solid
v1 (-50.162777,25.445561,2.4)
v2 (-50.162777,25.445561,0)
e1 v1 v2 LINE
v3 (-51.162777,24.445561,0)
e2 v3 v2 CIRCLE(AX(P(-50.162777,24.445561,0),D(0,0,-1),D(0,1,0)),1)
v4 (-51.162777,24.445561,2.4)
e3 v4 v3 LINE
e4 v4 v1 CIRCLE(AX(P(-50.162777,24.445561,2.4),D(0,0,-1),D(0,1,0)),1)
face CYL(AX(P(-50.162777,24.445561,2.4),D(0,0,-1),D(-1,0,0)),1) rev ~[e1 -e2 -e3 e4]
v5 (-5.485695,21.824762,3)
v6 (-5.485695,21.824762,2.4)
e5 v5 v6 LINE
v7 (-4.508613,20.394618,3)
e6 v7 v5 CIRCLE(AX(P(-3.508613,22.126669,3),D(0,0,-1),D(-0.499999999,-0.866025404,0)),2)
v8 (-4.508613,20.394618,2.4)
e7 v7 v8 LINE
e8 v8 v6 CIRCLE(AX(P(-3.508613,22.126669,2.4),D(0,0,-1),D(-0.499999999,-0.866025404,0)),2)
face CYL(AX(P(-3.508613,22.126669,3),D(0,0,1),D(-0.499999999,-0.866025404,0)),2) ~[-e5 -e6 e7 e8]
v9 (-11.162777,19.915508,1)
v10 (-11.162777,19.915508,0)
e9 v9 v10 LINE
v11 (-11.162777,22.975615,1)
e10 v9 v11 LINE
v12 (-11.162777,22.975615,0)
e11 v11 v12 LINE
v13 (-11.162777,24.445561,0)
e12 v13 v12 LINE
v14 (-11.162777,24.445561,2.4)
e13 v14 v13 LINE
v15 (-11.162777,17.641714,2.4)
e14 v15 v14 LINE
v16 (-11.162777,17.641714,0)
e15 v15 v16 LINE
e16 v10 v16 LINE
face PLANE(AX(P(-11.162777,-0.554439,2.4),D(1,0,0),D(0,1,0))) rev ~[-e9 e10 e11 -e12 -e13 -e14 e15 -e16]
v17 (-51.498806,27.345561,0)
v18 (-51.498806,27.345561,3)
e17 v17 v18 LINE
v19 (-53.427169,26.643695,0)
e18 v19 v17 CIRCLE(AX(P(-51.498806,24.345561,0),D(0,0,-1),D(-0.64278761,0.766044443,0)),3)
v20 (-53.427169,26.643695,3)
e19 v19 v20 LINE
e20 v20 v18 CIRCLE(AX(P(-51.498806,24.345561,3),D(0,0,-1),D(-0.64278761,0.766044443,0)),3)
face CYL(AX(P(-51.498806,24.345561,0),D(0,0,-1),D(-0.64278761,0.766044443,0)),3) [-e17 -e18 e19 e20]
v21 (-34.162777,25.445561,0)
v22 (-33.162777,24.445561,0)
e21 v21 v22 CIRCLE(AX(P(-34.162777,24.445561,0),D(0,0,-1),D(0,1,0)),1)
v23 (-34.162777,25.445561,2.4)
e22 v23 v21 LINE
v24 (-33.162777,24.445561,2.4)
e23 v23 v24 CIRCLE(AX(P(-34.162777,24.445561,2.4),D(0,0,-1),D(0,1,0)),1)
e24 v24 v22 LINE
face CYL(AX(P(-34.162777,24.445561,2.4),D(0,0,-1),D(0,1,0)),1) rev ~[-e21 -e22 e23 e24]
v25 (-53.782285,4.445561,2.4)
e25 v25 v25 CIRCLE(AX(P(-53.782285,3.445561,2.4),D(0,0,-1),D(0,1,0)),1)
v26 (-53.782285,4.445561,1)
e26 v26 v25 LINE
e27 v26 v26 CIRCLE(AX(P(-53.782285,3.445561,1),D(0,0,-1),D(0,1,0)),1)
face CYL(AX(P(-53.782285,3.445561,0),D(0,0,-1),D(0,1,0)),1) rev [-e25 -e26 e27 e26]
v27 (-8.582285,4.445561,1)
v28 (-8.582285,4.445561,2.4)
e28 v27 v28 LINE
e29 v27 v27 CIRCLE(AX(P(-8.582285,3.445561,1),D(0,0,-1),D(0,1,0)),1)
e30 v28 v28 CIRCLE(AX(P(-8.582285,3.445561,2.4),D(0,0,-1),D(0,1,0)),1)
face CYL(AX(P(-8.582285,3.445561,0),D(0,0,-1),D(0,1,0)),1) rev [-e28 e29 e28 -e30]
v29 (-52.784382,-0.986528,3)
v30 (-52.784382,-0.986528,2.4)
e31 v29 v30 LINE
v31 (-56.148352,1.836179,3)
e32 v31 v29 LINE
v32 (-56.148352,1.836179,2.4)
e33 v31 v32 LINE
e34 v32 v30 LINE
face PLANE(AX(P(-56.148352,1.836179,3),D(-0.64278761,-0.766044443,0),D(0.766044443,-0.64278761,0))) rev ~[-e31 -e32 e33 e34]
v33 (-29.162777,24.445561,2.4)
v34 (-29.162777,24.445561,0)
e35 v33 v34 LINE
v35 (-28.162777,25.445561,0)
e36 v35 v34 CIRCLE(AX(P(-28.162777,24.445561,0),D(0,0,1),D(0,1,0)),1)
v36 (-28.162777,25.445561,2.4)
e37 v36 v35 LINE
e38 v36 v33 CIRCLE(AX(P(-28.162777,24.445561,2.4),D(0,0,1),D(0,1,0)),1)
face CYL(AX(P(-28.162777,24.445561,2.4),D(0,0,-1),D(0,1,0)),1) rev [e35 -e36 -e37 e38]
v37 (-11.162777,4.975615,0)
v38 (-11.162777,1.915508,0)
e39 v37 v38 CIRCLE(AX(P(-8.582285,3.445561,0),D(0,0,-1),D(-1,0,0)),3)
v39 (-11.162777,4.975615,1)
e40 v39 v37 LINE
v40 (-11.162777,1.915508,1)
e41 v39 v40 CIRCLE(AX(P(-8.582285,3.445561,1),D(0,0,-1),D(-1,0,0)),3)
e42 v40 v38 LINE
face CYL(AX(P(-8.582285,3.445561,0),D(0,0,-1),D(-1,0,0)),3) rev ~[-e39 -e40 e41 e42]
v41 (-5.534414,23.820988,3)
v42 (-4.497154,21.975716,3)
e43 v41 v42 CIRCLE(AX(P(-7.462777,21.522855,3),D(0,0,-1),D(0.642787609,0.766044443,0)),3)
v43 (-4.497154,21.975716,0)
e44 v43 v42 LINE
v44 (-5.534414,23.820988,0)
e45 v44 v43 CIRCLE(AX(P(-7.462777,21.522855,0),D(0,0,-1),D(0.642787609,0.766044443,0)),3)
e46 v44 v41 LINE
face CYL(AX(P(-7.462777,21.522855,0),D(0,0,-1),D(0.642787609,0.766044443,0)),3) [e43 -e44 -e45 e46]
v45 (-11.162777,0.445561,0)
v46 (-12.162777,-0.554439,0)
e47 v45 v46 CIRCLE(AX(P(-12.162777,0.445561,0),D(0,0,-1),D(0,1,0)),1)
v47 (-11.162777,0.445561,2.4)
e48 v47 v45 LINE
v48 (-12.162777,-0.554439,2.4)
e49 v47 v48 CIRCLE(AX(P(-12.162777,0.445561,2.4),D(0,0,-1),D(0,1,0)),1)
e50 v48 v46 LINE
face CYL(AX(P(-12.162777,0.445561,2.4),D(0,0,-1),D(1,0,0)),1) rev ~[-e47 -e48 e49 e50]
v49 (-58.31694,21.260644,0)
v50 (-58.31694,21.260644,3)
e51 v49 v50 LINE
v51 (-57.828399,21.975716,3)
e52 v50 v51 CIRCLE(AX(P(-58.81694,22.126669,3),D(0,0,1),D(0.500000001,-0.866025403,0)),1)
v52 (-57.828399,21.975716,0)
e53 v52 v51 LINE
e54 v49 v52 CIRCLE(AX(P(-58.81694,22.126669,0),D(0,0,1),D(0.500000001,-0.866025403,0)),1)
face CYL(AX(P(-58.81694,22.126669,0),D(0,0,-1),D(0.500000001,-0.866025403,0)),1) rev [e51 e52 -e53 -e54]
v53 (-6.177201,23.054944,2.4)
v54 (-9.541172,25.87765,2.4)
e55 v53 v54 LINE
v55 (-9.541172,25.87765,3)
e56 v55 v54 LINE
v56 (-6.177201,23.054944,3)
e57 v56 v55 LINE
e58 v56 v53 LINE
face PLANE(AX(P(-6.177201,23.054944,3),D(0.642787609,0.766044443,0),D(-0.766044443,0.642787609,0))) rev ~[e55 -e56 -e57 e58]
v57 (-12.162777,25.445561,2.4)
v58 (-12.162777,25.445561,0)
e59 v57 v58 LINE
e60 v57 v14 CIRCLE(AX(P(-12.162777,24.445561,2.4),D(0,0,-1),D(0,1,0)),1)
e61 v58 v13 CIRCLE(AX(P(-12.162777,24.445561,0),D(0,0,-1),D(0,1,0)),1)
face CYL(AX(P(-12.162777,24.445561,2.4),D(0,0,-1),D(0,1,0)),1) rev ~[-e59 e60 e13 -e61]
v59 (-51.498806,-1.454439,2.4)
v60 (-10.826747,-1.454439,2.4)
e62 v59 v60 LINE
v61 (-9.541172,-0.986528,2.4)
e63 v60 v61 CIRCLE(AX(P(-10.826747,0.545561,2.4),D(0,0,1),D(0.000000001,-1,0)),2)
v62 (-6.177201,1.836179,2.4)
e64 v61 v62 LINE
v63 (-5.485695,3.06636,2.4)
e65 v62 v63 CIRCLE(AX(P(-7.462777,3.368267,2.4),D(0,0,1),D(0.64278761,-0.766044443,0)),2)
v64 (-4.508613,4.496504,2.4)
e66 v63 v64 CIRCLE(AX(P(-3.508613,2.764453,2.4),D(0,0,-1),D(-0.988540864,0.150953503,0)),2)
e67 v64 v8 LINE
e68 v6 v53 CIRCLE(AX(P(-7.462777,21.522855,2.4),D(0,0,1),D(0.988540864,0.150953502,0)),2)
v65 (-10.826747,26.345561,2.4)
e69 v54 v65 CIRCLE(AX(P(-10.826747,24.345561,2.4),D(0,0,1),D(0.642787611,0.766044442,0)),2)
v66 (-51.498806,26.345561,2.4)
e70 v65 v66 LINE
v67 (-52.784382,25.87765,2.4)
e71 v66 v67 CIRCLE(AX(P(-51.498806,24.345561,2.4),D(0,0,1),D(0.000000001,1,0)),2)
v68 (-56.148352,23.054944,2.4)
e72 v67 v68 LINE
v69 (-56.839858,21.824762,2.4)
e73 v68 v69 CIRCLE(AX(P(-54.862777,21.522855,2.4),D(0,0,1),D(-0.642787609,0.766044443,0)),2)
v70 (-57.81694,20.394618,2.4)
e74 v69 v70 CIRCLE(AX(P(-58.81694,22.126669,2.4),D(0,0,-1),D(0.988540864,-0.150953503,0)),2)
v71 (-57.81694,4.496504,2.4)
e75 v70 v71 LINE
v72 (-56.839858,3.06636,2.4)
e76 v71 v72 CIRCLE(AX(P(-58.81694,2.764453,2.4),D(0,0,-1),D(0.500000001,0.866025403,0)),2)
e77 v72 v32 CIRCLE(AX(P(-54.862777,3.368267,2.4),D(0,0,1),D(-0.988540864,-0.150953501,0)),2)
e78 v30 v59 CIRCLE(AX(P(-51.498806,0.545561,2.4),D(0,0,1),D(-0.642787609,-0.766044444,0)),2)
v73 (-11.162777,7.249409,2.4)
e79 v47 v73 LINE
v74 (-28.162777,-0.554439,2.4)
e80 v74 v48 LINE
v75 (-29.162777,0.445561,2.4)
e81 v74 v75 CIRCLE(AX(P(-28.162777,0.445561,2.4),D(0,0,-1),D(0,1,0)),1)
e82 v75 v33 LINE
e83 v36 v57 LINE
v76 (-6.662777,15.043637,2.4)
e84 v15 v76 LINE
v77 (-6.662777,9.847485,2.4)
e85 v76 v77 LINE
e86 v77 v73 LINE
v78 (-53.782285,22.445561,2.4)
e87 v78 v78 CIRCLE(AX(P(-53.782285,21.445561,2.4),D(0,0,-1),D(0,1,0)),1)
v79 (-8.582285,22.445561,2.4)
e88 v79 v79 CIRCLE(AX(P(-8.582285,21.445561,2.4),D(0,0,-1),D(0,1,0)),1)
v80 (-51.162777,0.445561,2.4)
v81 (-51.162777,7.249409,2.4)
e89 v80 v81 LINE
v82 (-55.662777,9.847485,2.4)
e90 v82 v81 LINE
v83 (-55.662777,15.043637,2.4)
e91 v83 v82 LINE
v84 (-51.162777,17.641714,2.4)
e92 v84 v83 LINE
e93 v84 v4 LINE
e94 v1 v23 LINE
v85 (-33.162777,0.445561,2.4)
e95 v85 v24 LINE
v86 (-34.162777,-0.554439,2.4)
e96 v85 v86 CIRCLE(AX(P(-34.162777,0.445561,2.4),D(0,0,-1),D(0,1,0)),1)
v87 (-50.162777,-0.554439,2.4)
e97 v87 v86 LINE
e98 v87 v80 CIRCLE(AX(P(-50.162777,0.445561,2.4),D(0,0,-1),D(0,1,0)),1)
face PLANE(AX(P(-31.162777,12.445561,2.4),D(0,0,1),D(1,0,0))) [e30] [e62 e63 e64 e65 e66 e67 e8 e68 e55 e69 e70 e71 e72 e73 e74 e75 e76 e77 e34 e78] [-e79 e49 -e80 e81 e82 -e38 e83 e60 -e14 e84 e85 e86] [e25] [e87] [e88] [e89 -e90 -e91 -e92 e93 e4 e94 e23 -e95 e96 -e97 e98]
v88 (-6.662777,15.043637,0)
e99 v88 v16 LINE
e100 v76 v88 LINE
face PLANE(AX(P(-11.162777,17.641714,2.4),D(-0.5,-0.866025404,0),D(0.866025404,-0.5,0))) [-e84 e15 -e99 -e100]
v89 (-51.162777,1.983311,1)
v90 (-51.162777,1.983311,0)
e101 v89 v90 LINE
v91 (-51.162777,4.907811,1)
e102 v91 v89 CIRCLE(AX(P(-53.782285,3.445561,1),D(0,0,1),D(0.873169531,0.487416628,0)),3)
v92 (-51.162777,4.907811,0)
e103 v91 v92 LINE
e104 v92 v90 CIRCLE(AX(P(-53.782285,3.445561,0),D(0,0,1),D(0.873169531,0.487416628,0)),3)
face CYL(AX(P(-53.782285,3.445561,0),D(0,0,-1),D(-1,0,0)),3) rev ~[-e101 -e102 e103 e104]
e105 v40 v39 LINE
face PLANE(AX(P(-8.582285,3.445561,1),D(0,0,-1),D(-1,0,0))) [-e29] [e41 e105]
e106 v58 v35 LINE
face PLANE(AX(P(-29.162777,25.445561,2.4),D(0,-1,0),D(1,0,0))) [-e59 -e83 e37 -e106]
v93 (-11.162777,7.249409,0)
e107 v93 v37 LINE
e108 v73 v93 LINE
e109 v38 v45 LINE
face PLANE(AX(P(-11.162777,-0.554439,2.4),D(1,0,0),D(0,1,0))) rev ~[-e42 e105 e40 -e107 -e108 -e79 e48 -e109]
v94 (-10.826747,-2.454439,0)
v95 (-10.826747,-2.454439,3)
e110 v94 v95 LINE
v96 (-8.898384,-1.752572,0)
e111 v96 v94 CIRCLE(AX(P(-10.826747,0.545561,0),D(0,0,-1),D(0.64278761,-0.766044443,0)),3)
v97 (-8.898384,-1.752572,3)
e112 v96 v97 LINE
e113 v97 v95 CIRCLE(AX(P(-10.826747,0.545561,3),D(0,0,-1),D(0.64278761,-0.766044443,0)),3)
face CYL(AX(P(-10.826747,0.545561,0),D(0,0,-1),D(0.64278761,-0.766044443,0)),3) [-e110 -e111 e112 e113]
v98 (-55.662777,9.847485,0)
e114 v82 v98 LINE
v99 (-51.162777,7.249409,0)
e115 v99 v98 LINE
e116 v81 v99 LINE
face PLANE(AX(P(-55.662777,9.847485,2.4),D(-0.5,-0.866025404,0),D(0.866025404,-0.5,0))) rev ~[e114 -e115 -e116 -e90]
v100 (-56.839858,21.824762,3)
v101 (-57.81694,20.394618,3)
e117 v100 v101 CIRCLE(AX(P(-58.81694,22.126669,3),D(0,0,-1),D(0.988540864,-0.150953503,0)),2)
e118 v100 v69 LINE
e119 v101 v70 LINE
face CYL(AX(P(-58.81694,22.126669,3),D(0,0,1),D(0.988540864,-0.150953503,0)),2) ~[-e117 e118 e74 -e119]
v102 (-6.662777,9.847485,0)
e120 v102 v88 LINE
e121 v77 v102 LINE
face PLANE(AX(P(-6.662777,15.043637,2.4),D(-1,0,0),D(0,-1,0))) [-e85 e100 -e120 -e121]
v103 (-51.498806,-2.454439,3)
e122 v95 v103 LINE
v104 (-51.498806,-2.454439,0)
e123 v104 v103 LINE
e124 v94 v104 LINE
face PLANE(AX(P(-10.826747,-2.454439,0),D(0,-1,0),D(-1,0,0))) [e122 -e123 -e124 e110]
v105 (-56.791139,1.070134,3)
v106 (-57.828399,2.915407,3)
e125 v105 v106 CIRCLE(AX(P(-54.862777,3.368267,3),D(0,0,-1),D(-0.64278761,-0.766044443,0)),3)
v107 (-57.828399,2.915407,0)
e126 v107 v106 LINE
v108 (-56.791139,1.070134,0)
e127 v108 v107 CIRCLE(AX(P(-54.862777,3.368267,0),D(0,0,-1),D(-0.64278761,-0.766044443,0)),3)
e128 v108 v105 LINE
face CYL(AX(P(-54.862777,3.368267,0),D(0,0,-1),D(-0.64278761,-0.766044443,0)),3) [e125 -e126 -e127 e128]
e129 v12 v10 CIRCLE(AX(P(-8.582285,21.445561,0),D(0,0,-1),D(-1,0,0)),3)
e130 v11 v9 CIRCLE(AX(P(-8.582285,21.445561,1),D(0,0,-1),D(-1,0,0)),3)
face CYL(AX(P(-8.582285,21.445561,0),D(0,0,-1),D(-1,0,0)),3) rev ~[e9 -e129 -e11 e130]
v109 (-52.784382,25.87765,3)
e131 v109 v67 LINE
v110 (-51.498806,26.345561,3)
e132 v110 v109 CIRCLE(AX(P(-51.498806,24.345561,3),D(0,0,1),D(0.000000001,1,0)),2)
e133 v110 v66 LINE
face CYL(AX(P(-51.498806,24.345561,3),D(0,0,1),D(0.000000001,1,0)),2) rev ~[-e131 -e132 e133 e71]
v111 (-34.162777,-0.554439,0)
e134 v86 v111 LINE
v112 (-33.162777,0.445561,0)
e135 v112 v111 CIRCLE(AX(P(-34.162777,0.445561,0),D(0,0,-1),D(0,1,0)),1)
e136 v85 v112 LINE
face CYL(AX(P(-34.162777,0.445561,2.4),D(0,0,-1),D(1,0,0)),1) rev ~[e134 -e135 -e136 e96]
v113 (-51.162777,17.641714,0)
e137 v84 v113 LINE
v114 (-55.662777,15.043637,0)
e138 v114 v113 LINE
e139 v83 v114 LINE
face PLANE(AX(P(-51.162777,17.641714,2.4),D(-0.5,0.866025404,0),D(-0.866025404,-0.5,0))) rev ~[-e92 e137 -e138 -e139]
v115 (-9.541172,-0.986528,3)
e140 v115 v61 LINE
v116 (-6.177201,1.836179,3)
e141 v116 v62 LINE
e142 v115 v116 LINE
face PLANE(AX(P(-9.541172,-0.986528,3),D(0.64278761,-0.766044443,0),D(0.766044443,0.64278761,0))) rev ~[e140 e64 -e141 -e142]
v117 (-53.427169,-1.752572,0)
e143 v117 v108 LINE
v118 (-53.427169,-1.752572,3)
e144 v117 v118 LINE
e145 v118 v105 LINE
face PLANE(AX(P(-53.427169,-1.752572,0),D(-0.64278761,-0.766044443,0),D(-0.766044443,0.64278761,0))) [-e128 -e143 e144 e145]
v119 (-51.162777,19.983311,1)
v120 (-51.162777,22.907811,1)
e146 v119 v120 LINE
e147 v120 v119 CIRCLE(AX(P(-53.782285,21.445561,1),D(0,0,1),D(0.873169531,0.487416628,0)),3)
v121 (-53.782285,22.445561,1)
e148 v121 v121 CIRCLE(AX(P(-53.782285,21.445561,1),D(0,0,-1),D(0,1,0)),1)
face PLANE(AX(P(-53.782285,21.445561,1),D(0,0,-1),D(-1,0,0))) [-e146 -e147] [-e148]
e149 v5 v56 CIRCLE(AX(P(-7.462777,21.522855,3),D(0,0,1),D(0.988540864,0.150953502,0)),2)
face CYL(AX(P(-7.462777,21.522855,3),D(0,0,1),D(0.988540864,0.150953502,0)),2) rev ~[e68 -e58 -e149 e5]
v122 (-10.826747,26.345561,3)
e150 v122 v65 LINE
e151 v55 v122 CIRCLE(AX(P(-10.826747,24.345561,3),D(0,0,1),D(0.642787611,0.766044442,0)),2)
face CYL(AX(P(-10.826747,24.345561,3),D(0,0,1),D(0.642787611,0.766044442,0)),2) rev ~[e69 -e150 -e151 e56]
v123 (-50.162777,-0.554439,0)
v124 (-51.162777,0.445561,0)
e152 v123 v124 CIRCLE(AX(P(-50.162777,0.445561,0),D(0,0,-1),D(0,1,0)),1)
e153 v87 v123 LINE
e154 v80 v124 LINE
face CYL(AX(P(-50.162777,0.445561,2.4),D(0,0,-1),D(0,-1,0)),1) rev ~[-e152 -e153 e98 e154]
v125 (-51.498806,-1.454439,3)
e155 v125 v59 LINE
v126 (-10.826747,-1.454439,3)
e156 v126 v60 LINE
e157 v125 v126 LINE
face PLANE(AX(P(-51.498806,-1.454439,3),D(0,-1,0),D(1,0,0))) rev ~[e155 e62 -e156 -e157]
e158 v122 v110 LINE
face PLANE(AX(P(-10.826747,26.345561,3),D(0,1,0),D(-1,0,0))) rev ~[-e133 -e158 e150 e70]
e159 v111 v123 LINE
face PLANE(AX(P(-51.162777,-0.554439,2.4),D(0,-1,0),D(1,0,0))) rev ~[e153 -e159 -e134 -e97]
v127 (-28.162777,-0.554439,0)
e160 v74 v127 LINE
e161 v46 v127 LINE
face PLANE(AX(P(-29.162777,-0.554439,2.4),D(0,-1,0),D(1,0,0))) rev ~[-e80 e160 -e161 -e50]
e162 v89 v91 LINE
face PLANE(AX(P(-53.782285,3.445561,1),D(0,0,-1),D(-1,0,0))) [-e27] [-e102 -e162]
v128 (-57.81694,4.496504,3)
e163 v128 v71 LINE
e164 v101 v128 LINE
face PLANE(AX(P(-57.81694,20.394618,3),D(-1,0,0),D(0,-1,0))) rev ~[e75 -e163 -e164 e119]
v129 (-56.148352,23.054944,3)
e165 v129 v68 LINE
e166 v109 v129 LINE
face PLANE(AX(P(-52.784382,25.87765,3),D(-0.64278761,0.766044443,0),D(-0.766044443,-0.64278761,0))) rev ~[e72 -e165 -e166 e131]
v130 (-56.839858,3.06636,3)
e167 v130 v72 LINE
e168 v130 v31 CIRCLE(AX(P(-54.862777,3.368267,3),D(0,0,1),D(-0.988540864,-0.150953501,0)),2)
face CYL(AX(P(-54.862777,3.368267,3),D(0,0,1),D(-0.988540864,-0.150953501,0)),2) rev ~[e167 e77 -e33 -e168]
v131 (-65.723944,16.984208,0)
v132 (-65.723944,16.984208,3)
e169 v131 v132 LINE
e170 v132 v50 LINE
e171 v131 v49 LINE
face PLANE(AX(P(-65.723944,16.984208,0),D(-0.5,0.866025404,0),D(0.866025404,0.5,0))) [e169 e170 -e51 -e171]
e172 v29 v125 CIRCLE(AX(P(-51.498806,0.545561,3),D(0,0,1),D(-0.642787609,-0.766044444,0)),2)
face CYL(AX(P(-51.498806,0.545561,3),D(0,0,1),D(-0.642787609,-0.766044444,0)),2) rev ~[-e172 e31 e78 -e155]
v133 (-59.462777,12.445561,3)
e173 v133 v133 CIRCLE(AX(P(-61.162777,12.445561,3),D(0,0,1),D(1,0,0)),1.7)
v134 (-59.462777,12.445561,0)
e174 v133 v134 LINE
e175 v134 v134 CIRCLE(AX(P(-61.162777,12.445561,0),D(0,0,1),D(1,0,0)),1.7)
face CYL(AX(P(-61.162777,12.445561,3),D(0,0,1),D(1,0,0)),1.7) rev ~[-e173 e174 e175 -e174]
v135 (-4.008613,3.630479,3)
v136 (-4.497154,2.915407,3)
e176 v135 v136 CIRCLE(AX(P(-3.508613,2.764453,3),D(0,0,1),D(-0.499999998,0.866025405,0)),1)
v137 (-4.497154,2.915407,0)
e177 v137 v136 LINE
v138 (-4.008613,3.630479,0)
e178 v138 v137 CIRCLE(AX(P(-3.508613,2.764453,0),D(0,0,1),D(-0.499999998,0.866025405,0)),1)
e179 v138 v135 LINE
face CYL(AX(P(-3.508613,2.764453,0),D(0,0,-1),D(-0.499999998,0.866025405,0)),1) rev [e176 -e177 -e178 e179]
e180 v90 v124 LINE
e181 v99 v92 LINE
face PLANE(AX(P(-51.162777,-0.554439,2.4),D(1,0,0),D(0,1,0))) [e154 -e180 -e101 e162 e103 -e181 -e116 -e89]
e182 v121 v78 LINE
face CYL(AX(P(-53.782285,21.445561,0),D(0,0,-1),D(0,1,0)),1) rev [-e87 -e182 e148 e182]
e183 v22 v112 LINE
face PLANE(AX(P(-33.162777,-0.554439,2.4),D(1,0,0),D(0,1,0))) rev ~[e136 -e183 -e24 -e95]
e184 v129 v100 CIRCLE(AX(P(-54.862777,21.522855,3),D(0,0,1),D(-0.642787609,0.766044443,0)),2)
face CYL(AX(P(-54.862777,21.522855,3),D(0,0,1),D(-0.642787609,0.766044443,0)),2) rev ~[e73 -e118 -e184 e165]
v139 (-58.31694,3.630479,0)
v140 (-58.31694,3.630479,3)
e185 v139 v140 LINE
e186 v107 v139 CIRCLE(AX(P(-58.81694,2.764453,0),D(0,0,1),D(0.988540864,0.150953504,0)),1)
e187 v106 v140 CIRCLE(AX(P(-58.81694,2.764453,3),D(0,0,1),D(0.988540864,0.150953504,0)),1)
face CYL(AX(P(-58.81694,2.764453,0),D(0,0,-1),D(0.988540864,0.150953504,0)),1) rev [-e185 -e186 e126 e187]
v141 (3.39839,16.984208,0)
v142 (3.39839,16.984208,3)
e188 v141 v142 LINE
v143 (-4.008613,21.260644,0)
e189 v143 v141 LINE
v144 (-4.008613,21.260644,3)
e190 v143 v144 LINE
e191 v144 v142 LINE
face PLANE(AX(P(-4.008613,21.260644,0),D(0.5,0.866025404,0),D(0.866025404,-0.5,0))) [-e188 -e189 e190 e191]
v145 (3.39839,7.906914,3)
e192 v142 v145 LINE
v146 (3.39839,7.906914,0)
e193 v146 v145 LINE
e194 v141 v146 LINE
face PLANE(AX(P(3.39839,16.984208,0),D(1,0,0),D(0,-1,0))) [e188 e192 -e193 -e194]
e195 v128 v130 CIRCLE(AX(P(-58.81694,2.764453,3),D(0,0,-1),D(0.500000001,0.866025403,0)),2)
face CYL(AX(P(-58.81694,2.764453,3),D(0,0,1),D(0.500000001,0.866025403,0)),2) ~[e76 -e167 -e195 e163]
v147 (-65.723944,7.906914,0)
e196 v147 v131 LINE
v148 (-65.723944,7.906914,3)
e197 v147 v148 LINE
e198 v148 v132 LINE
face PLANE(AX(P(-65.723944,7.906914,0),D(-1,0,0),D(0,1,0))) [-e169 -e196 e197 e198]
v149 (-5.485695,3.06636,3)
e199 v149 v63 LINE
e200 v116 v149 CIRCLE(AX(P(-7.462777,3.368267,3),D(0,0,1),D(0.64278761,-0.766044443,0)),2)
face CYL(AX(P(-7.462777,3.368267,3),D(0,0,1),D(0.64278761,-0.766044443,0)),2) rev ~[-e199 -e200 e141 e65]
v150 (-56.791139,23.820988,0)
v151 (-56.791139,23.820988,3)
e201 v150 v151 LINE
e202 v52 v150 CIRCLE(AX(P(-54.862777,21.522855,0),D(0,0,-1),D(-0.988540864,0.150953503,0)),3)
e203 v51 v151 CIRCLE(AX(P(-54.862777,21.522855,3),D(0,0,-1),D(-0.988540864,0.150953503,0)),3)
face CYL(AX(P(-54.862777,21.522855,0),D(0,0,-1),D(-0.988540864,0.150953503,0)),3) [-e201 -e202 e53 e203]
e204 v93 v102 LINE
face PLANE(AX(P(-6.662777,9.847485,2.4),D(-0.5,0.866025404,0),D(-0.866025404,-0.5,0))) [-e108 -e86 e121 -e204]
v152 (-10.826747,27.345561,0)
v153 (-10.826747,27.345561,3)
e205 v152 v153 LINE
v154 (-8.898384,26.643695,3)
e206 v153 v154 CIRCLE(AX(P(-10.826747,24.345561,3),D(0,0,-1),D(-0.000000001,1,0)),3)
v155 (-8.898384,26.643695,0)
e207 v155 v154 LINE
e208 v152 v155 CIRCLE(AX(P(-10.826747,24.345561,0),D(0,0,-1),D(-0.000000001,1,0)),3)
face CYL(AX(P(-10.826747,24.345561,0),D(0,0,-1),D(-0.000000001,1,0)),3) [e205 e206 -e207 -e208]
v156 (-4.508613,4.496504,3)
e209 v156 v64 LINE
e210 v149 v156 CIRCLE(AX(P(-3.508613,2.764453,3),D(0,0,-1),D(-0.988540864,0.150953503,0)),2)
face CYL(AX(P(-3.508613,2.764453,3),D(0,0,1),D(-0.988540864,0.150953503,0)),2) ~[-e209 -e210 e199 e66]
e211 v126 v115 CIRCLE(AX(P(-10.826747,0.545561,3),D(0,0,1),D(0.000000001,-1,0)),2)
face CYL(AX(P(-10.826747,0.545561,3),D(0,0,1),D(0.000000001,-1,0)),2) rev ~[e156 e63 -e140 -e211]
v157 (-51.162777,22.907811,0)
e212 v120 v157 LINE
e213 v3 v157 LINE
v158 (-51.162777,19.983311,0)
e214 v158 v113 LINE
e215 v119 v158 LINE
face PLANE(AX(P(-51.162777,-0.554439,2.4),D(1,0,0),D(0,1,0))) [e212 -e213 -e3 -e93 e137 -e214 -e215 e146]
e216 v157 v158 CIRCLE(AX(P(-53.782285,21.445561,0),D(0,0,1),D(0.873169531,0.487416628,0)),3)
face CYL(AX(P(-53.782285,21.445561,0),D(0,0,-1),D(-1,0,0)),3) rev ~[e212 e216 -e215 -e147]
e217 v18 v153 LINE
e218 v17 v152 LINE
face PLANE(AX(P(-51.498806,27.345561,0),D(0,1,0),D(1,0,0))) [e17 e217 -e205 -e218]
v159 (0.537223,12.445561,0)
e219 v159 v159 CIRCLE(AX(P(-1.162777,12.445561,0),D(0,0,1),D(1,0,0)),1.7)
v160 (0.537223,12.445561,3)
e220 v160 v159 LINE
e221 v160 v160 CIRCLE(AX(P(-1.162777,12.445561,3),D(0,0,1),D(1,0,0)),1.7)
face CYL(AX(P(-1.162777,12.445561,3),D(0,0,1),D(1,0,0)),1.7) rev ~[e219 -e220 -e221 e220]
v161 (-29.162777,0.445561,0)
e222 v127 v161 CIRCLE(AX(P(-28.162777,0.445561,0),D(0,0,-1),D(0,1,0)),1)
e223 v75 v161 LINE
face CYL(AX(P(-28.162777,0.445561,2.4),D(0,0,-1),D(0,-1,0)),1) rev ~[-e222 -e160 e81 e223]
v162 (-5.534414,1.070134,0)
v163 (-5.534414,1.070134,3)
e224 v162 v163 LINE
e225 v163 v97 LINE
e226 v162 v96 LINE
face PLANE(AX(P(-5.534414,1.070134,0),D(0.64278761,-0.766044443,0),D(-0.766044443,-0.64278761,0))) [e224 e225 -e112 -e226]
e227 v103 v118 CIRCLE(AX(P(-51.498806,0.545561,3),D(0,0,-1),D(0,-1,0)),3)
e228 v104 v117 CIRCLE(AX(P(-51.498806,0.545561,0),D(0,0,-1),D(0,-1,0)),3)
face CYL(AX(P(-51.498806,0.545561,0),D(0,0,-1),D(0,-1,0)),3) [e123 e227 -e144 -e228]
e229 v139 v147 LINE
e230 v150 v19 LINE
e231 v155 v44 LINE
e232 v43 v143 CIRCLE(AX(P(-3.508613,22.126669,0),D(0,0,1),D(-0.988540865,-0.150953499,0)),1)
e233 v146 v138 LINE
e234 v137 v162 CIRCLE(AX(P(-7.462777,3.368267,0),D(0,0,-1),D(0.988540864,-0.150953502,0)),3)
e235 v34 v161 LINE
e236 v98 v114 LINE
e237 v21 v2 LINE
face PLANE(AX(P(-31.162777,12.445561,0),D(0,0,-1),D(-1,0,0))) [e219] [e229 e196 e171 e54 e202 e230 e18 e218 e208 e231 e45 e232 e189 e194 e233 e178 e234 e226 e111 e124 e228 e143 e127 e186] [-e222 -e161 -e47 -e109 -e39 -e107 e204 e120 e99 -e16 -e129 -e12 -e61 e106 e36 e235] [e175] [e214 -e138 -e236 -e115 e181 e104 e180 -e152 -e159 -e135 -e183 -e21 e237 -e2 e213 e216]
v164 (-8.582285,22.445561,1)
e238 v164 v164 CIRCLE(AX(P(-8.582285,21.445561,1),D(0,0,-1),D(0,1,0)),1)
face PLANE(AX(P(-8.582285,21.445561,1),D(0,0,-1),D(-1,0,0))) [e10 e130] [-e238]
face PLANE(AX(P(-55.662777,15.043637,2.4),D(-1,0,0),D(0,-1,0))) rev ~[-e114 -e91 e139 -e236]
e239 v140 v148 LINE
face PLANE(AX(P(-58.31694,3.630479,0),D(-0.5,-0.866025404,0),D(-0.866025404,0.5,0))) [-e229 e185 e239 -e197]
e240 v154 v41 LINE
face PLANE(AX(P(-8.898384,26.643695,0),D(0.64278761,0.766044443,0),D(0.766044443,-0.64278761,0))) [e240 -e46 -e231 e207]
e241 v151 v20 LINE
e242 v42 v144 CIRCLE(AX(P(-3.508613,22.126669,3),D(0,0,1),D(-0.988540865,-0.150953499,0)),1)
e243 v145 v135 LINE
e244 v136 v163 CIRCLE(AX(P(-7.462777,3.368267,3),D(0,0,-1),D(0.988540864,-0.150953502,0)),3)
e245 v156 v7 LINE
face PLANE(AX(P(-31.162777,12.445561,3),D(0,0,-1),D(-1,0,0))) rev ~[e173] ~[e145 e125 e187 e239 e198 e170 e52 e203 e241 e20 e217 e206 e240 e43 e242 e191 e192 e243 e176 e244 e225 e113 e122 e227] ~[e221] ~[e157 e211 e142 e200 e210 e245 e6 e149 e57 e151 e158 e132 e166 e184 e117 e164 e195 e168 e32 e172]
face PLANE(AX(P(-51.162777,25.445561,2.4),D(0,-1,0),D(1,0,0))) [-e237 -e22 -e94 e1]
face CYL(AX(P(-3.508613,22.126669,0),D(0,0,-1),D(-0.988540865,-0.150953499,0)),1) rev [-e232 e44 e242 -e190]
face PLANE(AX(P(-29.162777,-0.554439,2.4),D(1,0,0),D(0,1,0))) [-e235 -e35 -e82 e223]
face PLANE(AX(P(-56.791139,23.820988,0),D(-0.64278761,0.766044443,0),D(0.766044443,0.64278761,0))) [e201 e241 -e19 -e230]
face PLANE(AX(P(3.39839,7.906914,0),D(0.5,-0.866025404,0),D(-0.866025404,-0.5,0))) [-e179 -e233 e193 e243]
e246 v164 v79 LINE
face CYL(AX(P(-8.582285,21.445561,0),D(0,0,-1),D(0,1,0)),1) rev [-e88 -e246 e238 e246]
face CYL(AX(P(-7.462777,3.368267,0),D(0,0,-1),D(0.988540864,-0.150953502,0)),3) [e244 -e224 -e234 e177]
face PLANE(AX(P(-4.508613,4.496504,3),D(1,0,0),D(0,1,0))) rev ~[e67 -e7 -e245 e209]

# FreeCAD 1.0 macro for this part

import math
import FreeCAD as App
import Part
import Sketcher
from FreeCAD import Vector
Q = App.Units.Quantity


def edges_at(feature, points):
    """Names of the edges that pass closest to the given points."""
    edges = feature.Shape.Edges
    near = lambda p: min(range(len(edges)), key=lambda i: edges[i].distToShape(Part.Vertex(*p))[0])
    return sorted({f"Edge{near(p) + 1}" for p in points})

doc = App.newDocument("Part")
body = doc.addObject("PartDesign::Body", "Body")

# Sketch on XY plane
sketch1 = doc.addObject("Sketcher::SketchObject", "Sketch")
body.addObject(sketch1)
sketch1.AttachmentSupport = (doc.XY_Plane, [""])
sketch1.MapMode = "FlatFace"
sketch1.addGeometry(Part.ArcOfCircle(Part.Circle(Vector(-3.5, 2.8, 0), Vector(0, 0, 1), 1), math.radians(120), math.radians(171)), False)
sketch1.addGeometry(Part.LineSegment(Vector(-4, 3.6, 0), Vector(3.4, 7.9, 0)), False)
sketch1.addGeometry(Part.LineSegment(Vector(3.4, 7.9, 0), Vector(3.4, 17, 0)), False)
sketch1.addGeometry(Part.LineSegment(Vector(3.4, 17, 0), Vector(-4, 21.3, 0)), False)
sketch1.addGeometry(Part.ArcOfCircle(Part.Circle(Vector(-3.5, 22.1, 0), Vector(0, 0, 1), 1), math.radians(-171), math.radians(-120)), False)
sketch1.addGeometry(Part.ArcOfCircle(Part.Circle(Vector(-7.5, 21.5, 0), Vector(0, 0, 1), 3), math.radians(9), math.radians(50)), False)
sketch1.addGeometry(Part.LineSegment(Vector(-5.5, 23.8, 0), Vector(-8.9, 26.6, 0)), False)
sketch1.addGeometry(Part.ArcOfCircle(Part.Circle(Vector(-10.8, 24.3, 0), Vector(0, 0, 1), 3), math.radians(50), math.radians(90)), False)
sketch1.addGeometry(Part.LineSegment(Vector(-10.8, 27.3, 0), Vector(-51.5, 27.3, 0)), False)
sketch1.addGeometry(Part.ArcOfCircle(Part.Circle(Vector(-51.5, 24.3, 0), Vector(0, 0, 1), 3), math.radians(90), math.radians(130)), False)
sketch1.addGeometry(Part.LineSegment(Vector(-53.4, 26.6, 0), Vector(-56.8, 23.8, 0)), False)
sketch1.addGeometry(Part.ArcOfCircle(Part.Circle(Vector(-54.9, 21.5, 0), Vector(0, 0, 1), 3), math.radians(130), math.radians(171)), False)
sketch1.addGeometry(Part.ArcOfCircle(Part.Circle(Vector(-58.8, 22.1, 0), Vector(0, 0, 1), 1), math.radians(-60), math.radians(-9)), False)
sketch1.addGeometry(Part.LineSegment(Vector(-58.3, 21.3, 0), Vector(-65.7, 17, 0)), False)
sketch1.addGeometry(Part.LineSegment(Vector(-65.7, 17, 0), Vector(-65.7, 7.9, 0)), False)
sketch1.addGeometry(Part.LineSegment(Vector(-65.7, 7.9, 0), Vector(-58.3, 3.6, 0)), False)
sketch1.addGeometry(Part.ArcOfCircle(Part.Circle(Vector(-58.8, 2.8, 0), Vector(0, 0, 1), 1), math.radians(9), math.radians(60)), False)
sketch1.addGeometry(Part.ArcOfCircle(Part.Circle(Vector(-54.9, 3.4, 0), Vector(0, 0, 1), 3), math.radians(-171), math.radians(-130)), False)
sketch1.addGeometry(Part.LineSegment(Vector(-56.8, 1.1, 0), Vector(-53.4, -1.8, 0)), False)
sketch1.addGeometry(Part.ArcOfCircle(Part.Circle(Vector(-51.5, 0.5, 0), Vector(0, 0, 1), 3), math.radians(-130), math.radians(-90)), False)
sketch1.addGeometry(Part.LineSegment(Vector(-51.5, -2.5, 0), Vector(-10.8, -2.5, 0)), False)
sketch1.addGeometry(Part.ArcOfCircle(Part.Circle(Vector(-10.8, 0.5, 0), Vector(0, 0, 1), 3), math.radians(-90), math.radians(-50)), False)
sketch1.addGeometry(Part.LineSegment(Vector(-8.9, -1.8, 0), Vector(-5.5, 1.1, 0)), False)
sketch1.addGeometry(Part.ArcOfCircle(Part.Circle(Vector(-7.5, 3.4, 0), Vector(0, 0, 1), 3), math.radians(-50), math.radians(-9)), False)
sketch1.addGeometry(Part.Circle(Vector(-8.6, 3.4, 0), Vector(0, 0, 1), 1), False)
sketch1.addGeometry(Part.Circle(Vector(-53.8, 3.4, 0), Vector(0, 0, 1), 1), False)
sketch1.addGeometry(Part.Circle(Vector(-8.6, 21.4, 0), Vector(0, 0, 1), 1), False)
sketch1.addGeometry(Part.Circle(Vector(-53.8, 21.4, 0), Vector(0, 0, 1), 1), False)
sketch1.addConstraint(Sketcher.Constraint("Tangent", 0, 1, 1, 1))
sketch1.addConstraint(Sketcher.Constraint("Coincident", 1, 2, 2, 1))
sketch1.addConstraint(Sketcher.Constraint("Coincident", 2, 2, 3, 1))
sketch1.addConstraint(Sketcher.Constraint("Tangent", 3, 2, 4, 2))
sketch1.addConstraint(Sketcher.Constraint("Tangent", 4, 1, 5, 1))
sketch1.addConstraint(Sketcher.Constraint("Tangent", 5, 2, 6, 1))
sketch1.addConstraint(Sketcher.Constraint("Tangent", 6, 2, 7, 1))
sketch1.addConstraint(Sketcher.Constraint("Tangent", 7, 2, 8, 1))
sketch1.addConstraint(Sketcher.Constraint("Tangent", 8, 2, 9, 1))
sketch1.addConstraint(Sketcher.Constraint("Tangent", 9, 2, 10, 1))
sketch1.addConstraint(Sketcher.Constraint("Tangent", 10, 2, 11, 1))
sketch1.addConstraint(Sketcher.Constraint("Tangent", 11, 2, 12, 2))
sketch1.addConstraint(Sketcher.Constraint("Tangent", 12, 1, 13, 1))
sketch1.addConstraint(Sketcher.Constraint("Coincident", 13, 2, 14, 1))
sketch1.addConstraint(Sketcher.Constraint("Coincident", 14, 2, 15, 1))
sketch1.addConstraint(Sketcher.Constraint("Tangent", 15, 2, 16, 2))
sketch1.addConstraint(Sketcher.Constraint("Tangent", 16, 1, 17, 1))
sketch1.addConstraint(Sketcher.Constraint("Tangent", 17, 2, 18, 1))
sketch1.addConstraint(Sketcher.Constraint("Tangent", 18, 2, 19, 1))
sketch1.addConstraint(Sketcher.Constraint("Tangent", 19, 2, 20, 1))
sketch1.addConstraint(Sketcher.Constraint("Tangent", 20, 2, 21, 1))
sketch1.addConstraint(Sketcher.Constraint("Tangent", 21, 2, 22, 1))
sketch1.addConstraint(Sketcher.Constraint("Tangent", 22, 2, 23, 1))
sketch1.addConstraint(Sketcher.Constraint("Tangent", 23, 2, 0, 2))
sketch1.addConstraint(Sketcher.Constraint("Vertical", 2))
sketch1.addConstraint(Sketcher.Constraint("Horizontal", 8))
sketch1.addConstraint(Sketcher.Constraint("Vertical", 14))
sketch1.addConstraint(Sketcher.Constraint("Horizontal", 20))
sketch1.addConstraint(Sketcher.Constraint("Equal", 0, 4))
sketch1.addConstraint(Sketcher.Constraint("Equal", 5, 7))
sketch1.addConstraint(Sketcher.Constraint("Equal", 7, 9))
sketch1.addConstraint(Sketcher.Constraint("Equal", 9, 11))
sketch1.addConstraint(Sketcher.Constraint("Equal", 4, 12))
sketch1.addConstraint(Sketcher.Constraint("Equal", 12, 16))
sketch1.addConstraint(Sketcher.Constraint("Equal", 11, 17))
sketch1.addConstraint(Sketcher.Constraint("Equal", 17, 19))
sketch1.addConstraint(Sketcher.Constraint("Equal", 19, 21))
sketch1.addConstraint(Sketcher.Constraint("Equal", 21, 23))
sketch1.addConstraint(Sketcher.Constraint("Equal", 16, 24))
sketch1.addConstraint(Sketcher.Constraint("Equal", 24, 25))
sketch1.addConstraint(Sketcher.Constraint("Equal", 25, 26))
sketch1.addConstraint(Sketcher.Constraint("Equal", 26, 27))
sketch1.addConstraint(Sketcher.Constraint("Parallel", 1, 13))
sketch1.addConstraint(Sketcher.Constraint("Parallel", 3, 15))
sketch1.addConstraint(Sketcher.Constraint("Parallel", 6, 18))
sketch1.addConstraint(Sketcher.Constraint("Parallel", 10, 22))
sketch1.addConstraint(Sketcher.Constraint("Horizontal", 5, 3, 11, 3))
sketch1.addConstraint(Sketcher.Constraint("Horizontal", 4, 3, 12, 3))
sketch1.addConstraint(Sketcher.Constraint("Horizontal", 0, 3, 16, 3))
sketch1.addConstraint(Sketcher.Constraint("Horizontal", 17, 3, 23, 3))
sketch1.addConstraint(Sketcher.Constraint("Horizontal", 24, 3, 25, 3))
sketch1.addConstraint(Sketcher.Constraint("Horizontal", 26, 3, 27, 3))
sketch1.addConstraint(Sketcher.Constraint("Horizontal", 6, 2, 9, 2))
sketch1.addConstraint(Sketcher.Constraint("Horizontal", 3, 2, 12, 1))
sketch1.addConstraint(Sketcher.Constraint("Horizontal", 2, 2, 13, 2))
sketch1.addConstraint(Sketcher.Constraint("Horizontal", 1, 2, 14, 2))
sketch1.addConstraint(Sketcher.Constraint("Vertical", 0, 3, 4, 3))
sketch1.addConstraint(Sketcher.Constraint("Vertical", 11, 3, 17, 3))
sketch1.addConstraint(Sketcher.Constraint("Vertical", 9, 3, 19, 3))
sketch1.addConstraint(Sketcher.Constraint("Vertical", 24, 3, 26, 3))
sketch1.addConstraint(Sketcher.Constraint("Vertical", 25, 3, 27, 3))
sketch1.addConstraint(Sketcher.Constraint("Diameter", 24, Q("2 mm")))
sketch1.addConstraint(Sketcher.Constraint("Radius", 5, Q("3 mm")))
sketch1.addConstraint(Sketcher.Constraint("Angle", 1, Q("30 deg")))
sketch1.addConstraint(Sketcher.Constraint("Angle", 6, Q("140 deg")))
sketch1.addConstraint(Sketcher.Constraint("DistanceY", 24, 3, 26, 3, Q("18 mm")))
sketch1.addConstraint(Sketcher.Constraint("DistanceX", 11, 3, 5, 3, Q("47.4 mm")))
sketch1.addConstraint(Sketcher.Constraint("DistanceY", 19, 3, 9, 3, Q("23.8 mm")))
sketch1.addConstraint(Sketcher.Constraint("DistanceY", 21, 3, 24, 3, Q("2.9 mm")))
sketch1.addConstraint(Sketcher.Constraint("DistanceX", 8, 2, 8, 1, Q("40.67206 mm")))
sketch1.addConstraint(Sketcher.Constraint("DistanceX", 11, 2, -1, 1, Q("57.828399 mm")))
sketch1.addConstraint(Sketcher.Constraint("DistanceY", 0, 3, 5, 3, Q("18.758402 mm")))
sketch1.addConstraint(Sketcher.Constraint("DistanceX", 6, 2, 26, 3, Q("0.316099 mm")))
sketch1.addConstraint(Sketcher.Constraint("Distance", 1, Q("8.552871 mm")))
sketch1.addConstraint(Sketcher.Constraint("DistanceY", -1, 1, 4, 3, Q("22.126669 mm")))
sketch1.addConstraint(Sketcher.Constraint("DistanceX", 17, 3, 25, 3, Q("1.080491 mm")))
pad1 = doc.addObject("PartDesign::Pad", "Pad")
body.addObject(pad1)
pad1.Profile = sketch1
pad1.Length = 3

# Sketch on XY plane
sketch2 = doc.addObject("Sketcher::SketchObject", "Sketch001")
body.addObject(sketch2)
sketch2.AttachmentSupport = (doc.XY_Plane, [""])
sketch2.MapMode = "FlatFace"
sketch2.AttachmentOffset = App.Placement(Vector(0, 0, 3), App.Rotation())
sketch2.addGeometry(Part.LineSegment(Vector(-56.1, 1.8, 0), Vector(-52.8, -1, 0)), False)
sketch2.addGeometry(Part.ArcOfCircle(Part.Circle(Vector(-51.5, 0.5, 0), Vector(0, 0, 1), 2), math.radians(-130), math.radians(-90)), False)
sketch2.addGeometry(Part.LineSegment(Vector(-51.5, -1.5, 0), Vector(-10.8, -1.5, 0)), False)
sketch2.addGeometry(Part.ArcOfCircle(Part.Circle(Vector(-10.8, 0.5, 0), Vector(0, 0, 1), 2), math.radians(-90), math.radians(-50)), False)
sketch2.addGeometry(Part.LineSegment(Vector(-9.5, -1, 0), Vector(-6.2, 1.8, 0)), False)
sketch2.addGeometry(Part.ArcOfCircle(Part.Circle(Vector(-7.5, 3.4, 0), Vector(0, 0, 1), 2), math.radians(-50), math.radians(-9)), False)
sketch2.addGeometry(Part.ArcOfCircle(Part.Circle(Vector(-3.5, 2.8, 0), Vector(0, 0, 1), 2), math.radians(120), math.radians(171)), False)
sketch2.addGeometry(Part.LineSegment(Vector(-4.5, 4.5, 0), Vector(-4.5, 20.4, 0)), False)
sketch2.addGeometry(Part.ArcOfCircle(Part.Circle(Vector(-3.5, 22.1, 0), Vector(0, 0, 1), 2), math.radians(-171), math.radians(-120)), False)
sketch2.addGeometry(Part.ArcOfCircle(Part.Circle(Vector(-7.5, 21.5, 0), Vector(0, 0, 1), 2), math.radians(9), math.radians(50)), False)
sketch2.addGeometry(Part.LineSegment(Vector(-6.2, 23.1, 0), Vector(-9.5, 25.9, 0)), False)
sketch2.addGeometry(Part.ArcOfCircle(Part.Circle(Vector(-10.8, 24.3, 0), Vector(0, 0, 1), 2), math.radians(50), math.radians(90)), False)
sketch2.addGeometry(Part.LineSegment(Vector(-10.8, 26.3, 0), Vector(-51.5, 26.3, 0)), False)
sketch2.addGeometry(Part.ArcOfCircle(Part.Circle(Vector(-51.5, 24.3, 0), Vector(0, 0, 1), 2), math.radians(90), math.radians(130)), False)
sketch2.addGeometry(Part.LineSegment(Vector(-52.8, 25.9, 0), Vector(-56.1, 23.1, 0)), False)
sketch2.addGeometry(Part.ArcOfCircle(Part.Circle(Vector(-54.9, 21.5, 0), Vector(0, 0, 1), 2), math.radians(130), math.radians(171)), False)
sketch2.addGeometry(Part.ArcOfCircle(Part.Circle(Vector(-58.8, 22.1, 0), Vector(0, 0, 1), 2), math.radians(-60), math.radians(-9)), False)
sketch2.addGeometry(Part.LineSegment(Vector(-57.8, 20.4, 0), Vector(-57.8, 4.5, 0)), False)
sketch2.addGeometry(Part.ArcOfCircle(Part.Circle(Vector(-58.8, 2.8, 0), Vector(0, 0, 1), 2), math.radians(9), math.radians(60)), False)
sketch2.addGeometry(Part.ArcOfCircle(Part.Circle(Vector(-54.9, 3.4, 0), Vector(0, 0, 1), 2), math.radians(-171), math.radians(-130)), False)
sketch2.addConstraint(Sketcher.Constraint("Tangent", 0, 2, 1, 1))
sketch2.addConstraint(Sketcher.Constraint("Tangent", 1, 2, 2, 1))
sketch2.addConstraint(Sketcher.Constraint("Tangent", 2, 2, 3, 1))
sketch2.addConstraint(Sketcher.Constraint("Tangent", 3, 2, 4, 1))
sketch2.addConstraint(Sketcher.Constraint("Tangent", 4, 2, 5, 1))
sketch2.addConstraint(Sketcher.Constraint("Tangent", 5, 2, 6, 2))
sketch2.addConstraint(Sketcher.Constraint("Coincident", 6, 1, 7, 1))
sketch2.addConstraint(Sketcher.Constraint("Coincident", 7, 2, 8, 2))
sketch2.addConstraint(Sketcher.Constraint("Tangent", 8, 1, 9, 1))
sketch2.addConstraint(Sketcher.Constraint("Tangent", 9, 2, 10, 1))
sketch2.addConstraint(Sketcher.Constraint("Tangent", 10, 2, 11, 1))
sketch2.addConstraint(Sketcher.Constraint("Tangent", 11, 2, 12, 1))
sketch2.addConstraint(Sketcher.Constraint("Tangent", 12, 2, 13, 1))
sketch2.addConstraint(Sketcher.Constraint("Tangent", 13, 2, 14, 1))
sketch2.addConstraint(Sketcher.Constraint("Tangent", 14, 2, 15, 1))
sketch2.addConstraint(Sketcher.Constraint("Tangent", 15, 2, 16, 2))
sketch2.addConstraint(Sketcher.Constraint("Coincident", 16, 1, 17, 1))
sketch2.addConstraint(Sketcher.Constraint("Coincident", 17, 2, 18, 2))
sketch2.addConstraint(Sketcher.Constraint("Tangent", 18, 1, 19, 1))
sketch2.addConstraint(Sketcher.Constraint("Tangent", 19, 2, 0, 1))
sketch2.addConstraint(Sketcher.Constraint("Horizontal", 2))
sketch2.addConstraint(Sketcher.Constraint("Vertical", 7))
sketch2.addConstraint(Sketcher.Constraint("Horizontal", 12))
sketch2.addConstraint(Sketcher.Constraint("Vertical", 17))
sketch2.addConstraint(Sketcher.Constraint("Equal", 1, 3))
sketch2.addConstraint(Sketcher.Constraint("Equal", 3, 5))
sketch2.addConstraint(Sketcher.Constraint("Equal", 5, 6))
sketch2.addConstraint(Sketcher.Constraint("Equal", 6, 8))
sketch2.addConstraint(Sketcher.Constraint("Equal", 8, 9))
sketch2.addConstraint(Sketcher.Constraint("Equal", 9, 11))
sketch2.addConstraint(Sketcher.Constraint("Equal", 11, 13))
sketch2.addConstraint(Sketcher.Constraint("Equal", 13, 15))
sketch2.addConstraint(Sketcher.Constraint("Equal", 15, 16))
sketch2.addConstraint(Sketcher.Constraint("Equal", 16, 18))
sketch2.addConstraint(Sketcher.Constraint("Equal", 18, 19))
sketch2.addConstraint(Sketcher.Constraint("Parallel", 0, 10))
sketch2.addConstraint(Sketcher.Constraint("Parallel", 4, 14))
sketch2.addConstraint(Sketcher.Constraint("Horizontal", 9, 3, 15, 3))
sketch2.addConstraint(Sketcher.Constraint("Horizontal", 8, 3, 16, 3))
sketch2.addConstraint(Sketcher.Constraint("Horizontal", 6, 3, 18, 3))
sketch2.addConstraint(Sketcher.Constraint("Horizontal", 5, 3, 19, 3))
sketch2.addConstraint(Sketcher.Constraint("Horizontal", 0, 2, 3, 2))
sketch2.addConstraint(Sketcher.Constraint("Horizontal", 7, 2, 16, 1))
sketch2.addConstraint(Sketcher.Constraint("Horizontal", 6, 1, 17, 2))
sketch2.addConstraint(Sketcher.Constraint("Vertical", 6, 3, 8, 3))
sketch2.addConstraint(Sketcher.Constraint("Vertical", 5, 3, 9, 3))
sketch2.addConstraint(Sketcher.Constraint("Vertical", 3, 3, 11, 3))
sketch2.addConstraint(Sketcher.Constraint("Radius", 1, Q("2 mm")))
sketch2.addConstraint(Sketcher.Constraint("Angle", 0, Q("-40 deg")))
sketch2.addConstraint(Sketcher.Constraint("DistanceX", 6, 1, 6, 3, Q("1 mm")))
sketch2.addConstraint(Sketcher.Constraint("DistanceY", 3, 3, 11, 3, Q("23.8 mm")))
sketch2.addConstraint(Sketcher.Constraint("DistanceX", 15, 3, 9, 3, Q("47.4 mm")))
sketch2.addConstraint(Sketcher.Constraint("DistanceX", 2, 1, 2, 2, Q("40.67206 mm")))
sketch2.addConstraint(Sketcher.Constraint("DistanceX", 4, 2, -1, 1, Q("6.177201 mm")))
sketch2.addConstraint(Sketcher.Constraint("DistanceY", 5, 3, 8, 3, Q("18.758402 mm")))
sketch2.addConstraint(Sketcher.Constraint("DistanceY", -1, 1, 1, 3, Q("0.545561 mm")))
pocket1 = doc.addObject("PartDesign::Pocket", "Pocket")
body.addObject(pocket1)
pocket1.Profile = sketch2
pocket1.Length = 0.6

# Sketch on XY plane
sketch3 = doc.addObject("Sketcher::SketchObject", "Sketch002")
body.addObject(sketch3)
sketch3.AttachmentSupport = (doc.XY_Plane, [""])
sketch3.MapMode = "FlatFace"
sketch3.AttachmentOffset = App.Placement(Vector(0, 0, 2.4), App.Rotation())
sketch3.addGeometry(Part.LineSegment(Vector(-29, 25, 0), Vector(-29, -1, 0)), False)
sketch3.addGeometry(Part.LineSegment(Vector(-29, -1, 0), Vector(-11, -1, 0)), False)
sketch3.addGeometry(Part.LineSegment(Vector(-11, -1, 0), Vector(-11, 25, 0)), False)
sketch3.addGeometry(Part.LineSegment(Vector(-11, 25, 0), Vector(-29, 25, 0)), False)
sketch3.addGeometry(Part.LineSegment(Vector(-51, 25, 0), Vector(-51, -1, 0)), False)
sketch3.addGeometry(Part.LineSegment(Vector(-51, -1, 0), Vector(-33, -1, 0)), False)
sketch3.addGeometry(Part.LineSegment(Vector(-33, -1, 0), Vector(-33, 25, 0)), False)
sketch3.addGeometry(Part.LineSegment(Vector(-33, 25, 0), Vector(-51, 25, 0)), False)
sketch3.addConstraint(Sketcher.Constraint("Coincident", 0, 2, 1, 1))
sketch3.addConstraint(Sketcher.Constraint("Coincident", 1, 2, 2, 1))
sketch3.addConstraint(Sketcher.Constraint("Coincident", 2, 2, 3, 1))
sketch3.addConstraint(Sketcher.Constraint("Coincident", 3, 2, 0, 1))
sketch3.addConstraint(Sketcher.Constraint("Coincident", 4, 2, 5, 1))
sketch3.addConstraint(Sketcher.Constraint("Coincident", 5, 2, 6, 1))
sketch3.addConstraint(Sketcher.Constraint("Coincident", 6, 2, 7, 1))
sketch3.addConstraint(Sketcher.Constraint("Coincident", 7, 2, 4, 1))
sketch3.addConstraint(Sketcher.Constraint("Vertical", 0))
sketch3.addConstraint(Sketcher.Constraint("Horizontal", 1))
sketch3.addConstraint(Sketcher.Constraint("Vertical", 2))
sketch3.addConstraint(Sketcher.Constraint("Horizontal", 3))
sketch3.addConstraint(Sketcher.Constraint("Vertical", 4))
sketch3.addConstraint(Sketcher.Constraint("Horizontal", 5))
sketch3.addConstraint(Sketcher.Constraint("Vertical", 6))
sketch3.addConstraint(Sketcher.Constraint("Horizontal", 7))
sketch3.addConstraint(Sketcher.Constraint("Horizontal", 1, 2, 4, 2))
sketch3.addConstraint(Sketcher.Constraint("Horizontal", 3, 2, 6, 2))
sketch3.addConstraint(Sketcher.Constraint("Equal", 3, 5))
sketch3.addConstraint(Sketcher.Constraint("DistanceX", 1, 1, 1, 2, Q("18 mm")))
sketch3.addConstraint(Sketcher.Constraint("DistanceY", 0, 2, 0, 1, Q("26 mm")))
sketch3.addConstraint(Sketcher.Constraint("DistanceX", 4, 2, 0, 2, Q("22 mm")))
sketch3.addConstraint(Sketcher.Constraint("DistanceY", 0, 2, -1, 1, Q("0.554439 mm")))
sketch3.addConstraint(Sketcher.Constraint("DistanceX", 0, 2, -1, 1, Q("29.162777 mm")))
pocket2 = doc.addObject("PartDesign::Pocket", "Pocket001")
body.addObject(pocket2)
pocket2.Profile = sketch3
pocket2.Type = "ThroughAll"
doc.recompute()

fillet = doc.addObject("PartDesign::Fillet", "Fillet")
body.addObject(fillet)
fillet.Base = (pocket2, edges_at(pocket2, [
    (-29.163, -0.554, 1.2),
    (-29.163, 25.446, 1.2),
    (-33.163, 25.446, 1.2),
    (-33.163, -0.554, 1.2),
]))
fillet.Radius = 1

# Sketch on XY plane
sketch4 = doc.addObject("Sketcher::SketchObject", "Sketch003")
body.addObject(sketch4)
sketch4.AttachmentSupport = (doc.XY_Plane, [""])
sketch4.MapMode = "FlatFace"
sketch4.AttachmentOffset = App.Placement(Vector(0, 0, 2.4), App.Rotation())
sketch4.addGeometry(Part.LineSegment(Vector(-11, 18, 0), Vector(-11, 7, 0)), False)
sketch4.addGeometry(Part.LineSegment(Vector(-11, 7, 0), Vector(-7, 10, 0)), False)
sketch4.addGeometry(Part.LineSegment(Vector(-7, 10, 0), Vector(-7, 15, 0)), False)
sketch4.addGeometry(Part.LineSegment(Vector(-7, 15, 0), Vector(-11, 18, 0)), False)
sketch4.addGeometry(Part.LineSegment(Vector(-51, 7, 0), Vector(-51, 18, 0)), False)
sketch4.addGeometry(Part.LineSegment(Vector(-51, 18, 0), Vector(-56, 15, 0)), False)
sketch4.addGeometry(Part.LineSegment(Vector(-56, 15, 0), Vector(-56, 10, 0)), False)
sketch4.addGeometry(Part.LineSegment(Vector(-56, 10, 0), Vector(-51, 7, 0)), False)
sketch4.addConstraint(Sketcher.Constraint("Coincident", 0, 2, 1, 1))
sketch4.addConstraint(Sketcher.Constraint("Coincident", 1, 2, 2, 1))
sketch4.addConstraint(Sketcher.Constraint("Coincident", 2, 2, 3, 1))
sketch4.addConstraint(Sketcher.Constraint("Coincident", 3, 2, 0, 1))
sketch4.addConstraint(Sketcher.Constraint("Coincident", 4, 2, 5, 1))
sketch4.addConstraint(Sketcher.Constraint("Coincident", 5, 2, 6, 1))
sketch4.addConstraint(Sketcher.Constraint("Coincident", 6, 2, 7, 1))
sketch4.addConstraint(Sketcher.Constraint("Coincident", 7, 2, 4, 1))
sketch4.addConstraint(Sketcher.Constraint("Vertical", 0))
sketch4.addConstraint(Sketcher.Constraint("Vertical", 2))
sketch4.addConstraint(Sketcher.Constraint("Vertical", 4))
sketch4.addConstraint(Sketcher.Constraint("Vertical", 6))
sketch4.addConstraint(Sketcher.Constraint("Parallel", 1, 5))
sketch4.addConstraint(Sketcher.Constraint("Parallel", 3, 7))
sketch4.addConstraint(Sketcher.Constraint("Horizontal", 3, 2, 4, 2))
sketch4.addConstraint(Sketcher.Constraint("Horizontal", 2, 2, 5, 2))
sketch4.addConstraint(Sketcher.Constraint("Horizontal", 1, 2, 6, 2))
sketch4.addConstraint(Sketcher.Constraint("Horizontal", 0, 2, 7, 2))
sketch4.addConstraint(Sketcher.Constraint("Angle", 1, Q("30 deg")))
sketch4.addConstraint(Sketcher.Constraint("DistanceX", 4, 2, 3, 2, Q("40 mm")))
sketch4.addConstraint(Sketcher.Constraint("DistanceX", 5, 2, 2, 2, Q("49 mm")))
sketch4.addConstraint(Sketcher.Constraint("DistanceY", 0, 2, 0, 1, Q("10.392305 mm")))
sketch4.addConstraint(Sketcher.Constraint("DistanceY", -1, 1, 0, 2, Q("7.249409 mm")))
sketch4.addConstraint(Sketcher.Constraint("DistanceX", 0, 2, -1, 1, Q("11.162777 mm")))
pocket3 = doc.addObject("PartDesign::Pocket", "Pocket002")
body.addObject(pocket3)
pocket3.Profile = sketch4
pocket3.Type = "ThroughAll"
doc.recompute()

fillet2 = doc.addObject("PartDesign::Fillet", "Fillet001")
body.addObject(fillet2)
fillet2.Base = (pocket3, edges_at(pocket3, [
    (-11.163, 25.446, 1.2),
    (-11.163, -0.554, 1.2),
    (-51.163, -0.554, 1.2),
    (-51.163, 25.446, 1.2),
]))
fillet2.Radius = 1

# Sketch on XY plane
sketch5 = doc.addObject("Sketcher::SketchObject", "Sketch004")
body.addObject(sketch5)
sketch5.AttachmentSupport = (doc.XY_Plane, [""])
sketch5.MapMode = "FlatFace"
sketch5.AttachmentOffset = App.Placement(Vector(0, 0, 3), App.Rotation())
sketch5.addGeometry(Part.Circle(Vector(-1.2, 12.4, 0), Vector(0, 0, 1), 1.7), False)
sketch5.addGeometry(Part.Circle(Vector(-61.2, 12.4, 0), Vector(0, 0, 1), 1.7), False)
sketch5.addConstraint(Sketcher.Constraint("Equal", 0, 1))
sketch5.addConstraint(Sketcher.Constraint("Horizontal", 0, 3, 1, 3))
sketch5.addConstraint(Sketcher.Constraint("Diameter", 0, Q("3.4 mm")))
sketch5.addConstraint(Sketcher.Constraint("DistanceX", 1, 3, 0, 3, Q("60 mm")))
sketch5.addConstraint(Sketcher.Constraint("DistanceY", -1, 1, 0, 3, Q("12.445561 mm")))
sketch5.addConstraint(Sketcher.Constraint("DistanceX", 0, 3, -1, 1, Q("1.162777 mm")))
pocket4 = doc.addObject("PartDesign::Pocket", "Pocket003")
body.addObject(pocket4)
pocket4.Profile = sketch5
pocket4.Type = "ThroughAll"

# Sketch on XY plane
sketch6 = doc.addObject("Sketcher::SketchObject", "Sketch005")
body.addObject(sketch6)
sketch6.AttachmentSupport = (doc.XY_Plane, [""])
sketch6.MapMode = "FlatFace"
sketch6.addGeometry(Part.Circle(Vector(-53.8, 3.4, 0), Vector(0, 0, 1), 3), False)
sketch6.addGeometry(Part.Circle(Vector(-53.8, 21.4, 0), Vector(0, 0, 1), 3), False)
sketch6.addGeometry(Part.Circle(Vector(-8.6, 21.4, 0), Vector(0, 0, 1), 3), False)
sketch6.addGeometry(Part.Circle(Vector(-8.6, 3.4, 0), Vector(0, 0, 1), 3), False)
sketch6.addConstraint(Sketcher.Constraint("Equal", 0, 1))
sketch6.addConstraint(Sketcher.Constraint("Equal", 1, 2))
sketch6.addConstraint(Sketcher.Constraint("Equal", 2, 3))
sketch6.addConstraint(Sketcher.Constraint("Horizontal", 1, 3, 2, 3))
sketch6.addConstraint(Sketcher.Constraint("Horizontal", 0, 3, 3, 3))
sketch6.addConstraint(Sketcher.Constraint("Vertical", 0, 3, 1, 3))
sketch6.addConstraint(Sketcher.Constraint("Vertical", 2, 3, 3, 3))
sketch6.addConstraint(Sketcher.Constraint("Diameter", 0, Q("6 mm")))
sketch6.addConstraint(Sketcher.Constraint("DistanceY", 0, 3, 1, 3, Q("18 mm")))
sketch6.addConstraint(Sketcher.Constraint("DistanceX", 1, 3, 2, 3, Q("45.2 mm")))
sketch6.addConstraint(Sketcher.Constraint("DistanceY", -1, 1, 0, 3, Q("3.445561 mm")))
sketch6.addConstraint(Sketcher.Constraint("DistanceX", 0, 3, -1, 1, Q("53.782285 mm")))
pocket5 = doc.addObject("PartDesign::Pocket", "Pocket004")
body.addObject(pocket5)
pocket5.Profile = sketch6
pocket5.Length = 1
pocket5.Reversed = True

doc.recompute()
